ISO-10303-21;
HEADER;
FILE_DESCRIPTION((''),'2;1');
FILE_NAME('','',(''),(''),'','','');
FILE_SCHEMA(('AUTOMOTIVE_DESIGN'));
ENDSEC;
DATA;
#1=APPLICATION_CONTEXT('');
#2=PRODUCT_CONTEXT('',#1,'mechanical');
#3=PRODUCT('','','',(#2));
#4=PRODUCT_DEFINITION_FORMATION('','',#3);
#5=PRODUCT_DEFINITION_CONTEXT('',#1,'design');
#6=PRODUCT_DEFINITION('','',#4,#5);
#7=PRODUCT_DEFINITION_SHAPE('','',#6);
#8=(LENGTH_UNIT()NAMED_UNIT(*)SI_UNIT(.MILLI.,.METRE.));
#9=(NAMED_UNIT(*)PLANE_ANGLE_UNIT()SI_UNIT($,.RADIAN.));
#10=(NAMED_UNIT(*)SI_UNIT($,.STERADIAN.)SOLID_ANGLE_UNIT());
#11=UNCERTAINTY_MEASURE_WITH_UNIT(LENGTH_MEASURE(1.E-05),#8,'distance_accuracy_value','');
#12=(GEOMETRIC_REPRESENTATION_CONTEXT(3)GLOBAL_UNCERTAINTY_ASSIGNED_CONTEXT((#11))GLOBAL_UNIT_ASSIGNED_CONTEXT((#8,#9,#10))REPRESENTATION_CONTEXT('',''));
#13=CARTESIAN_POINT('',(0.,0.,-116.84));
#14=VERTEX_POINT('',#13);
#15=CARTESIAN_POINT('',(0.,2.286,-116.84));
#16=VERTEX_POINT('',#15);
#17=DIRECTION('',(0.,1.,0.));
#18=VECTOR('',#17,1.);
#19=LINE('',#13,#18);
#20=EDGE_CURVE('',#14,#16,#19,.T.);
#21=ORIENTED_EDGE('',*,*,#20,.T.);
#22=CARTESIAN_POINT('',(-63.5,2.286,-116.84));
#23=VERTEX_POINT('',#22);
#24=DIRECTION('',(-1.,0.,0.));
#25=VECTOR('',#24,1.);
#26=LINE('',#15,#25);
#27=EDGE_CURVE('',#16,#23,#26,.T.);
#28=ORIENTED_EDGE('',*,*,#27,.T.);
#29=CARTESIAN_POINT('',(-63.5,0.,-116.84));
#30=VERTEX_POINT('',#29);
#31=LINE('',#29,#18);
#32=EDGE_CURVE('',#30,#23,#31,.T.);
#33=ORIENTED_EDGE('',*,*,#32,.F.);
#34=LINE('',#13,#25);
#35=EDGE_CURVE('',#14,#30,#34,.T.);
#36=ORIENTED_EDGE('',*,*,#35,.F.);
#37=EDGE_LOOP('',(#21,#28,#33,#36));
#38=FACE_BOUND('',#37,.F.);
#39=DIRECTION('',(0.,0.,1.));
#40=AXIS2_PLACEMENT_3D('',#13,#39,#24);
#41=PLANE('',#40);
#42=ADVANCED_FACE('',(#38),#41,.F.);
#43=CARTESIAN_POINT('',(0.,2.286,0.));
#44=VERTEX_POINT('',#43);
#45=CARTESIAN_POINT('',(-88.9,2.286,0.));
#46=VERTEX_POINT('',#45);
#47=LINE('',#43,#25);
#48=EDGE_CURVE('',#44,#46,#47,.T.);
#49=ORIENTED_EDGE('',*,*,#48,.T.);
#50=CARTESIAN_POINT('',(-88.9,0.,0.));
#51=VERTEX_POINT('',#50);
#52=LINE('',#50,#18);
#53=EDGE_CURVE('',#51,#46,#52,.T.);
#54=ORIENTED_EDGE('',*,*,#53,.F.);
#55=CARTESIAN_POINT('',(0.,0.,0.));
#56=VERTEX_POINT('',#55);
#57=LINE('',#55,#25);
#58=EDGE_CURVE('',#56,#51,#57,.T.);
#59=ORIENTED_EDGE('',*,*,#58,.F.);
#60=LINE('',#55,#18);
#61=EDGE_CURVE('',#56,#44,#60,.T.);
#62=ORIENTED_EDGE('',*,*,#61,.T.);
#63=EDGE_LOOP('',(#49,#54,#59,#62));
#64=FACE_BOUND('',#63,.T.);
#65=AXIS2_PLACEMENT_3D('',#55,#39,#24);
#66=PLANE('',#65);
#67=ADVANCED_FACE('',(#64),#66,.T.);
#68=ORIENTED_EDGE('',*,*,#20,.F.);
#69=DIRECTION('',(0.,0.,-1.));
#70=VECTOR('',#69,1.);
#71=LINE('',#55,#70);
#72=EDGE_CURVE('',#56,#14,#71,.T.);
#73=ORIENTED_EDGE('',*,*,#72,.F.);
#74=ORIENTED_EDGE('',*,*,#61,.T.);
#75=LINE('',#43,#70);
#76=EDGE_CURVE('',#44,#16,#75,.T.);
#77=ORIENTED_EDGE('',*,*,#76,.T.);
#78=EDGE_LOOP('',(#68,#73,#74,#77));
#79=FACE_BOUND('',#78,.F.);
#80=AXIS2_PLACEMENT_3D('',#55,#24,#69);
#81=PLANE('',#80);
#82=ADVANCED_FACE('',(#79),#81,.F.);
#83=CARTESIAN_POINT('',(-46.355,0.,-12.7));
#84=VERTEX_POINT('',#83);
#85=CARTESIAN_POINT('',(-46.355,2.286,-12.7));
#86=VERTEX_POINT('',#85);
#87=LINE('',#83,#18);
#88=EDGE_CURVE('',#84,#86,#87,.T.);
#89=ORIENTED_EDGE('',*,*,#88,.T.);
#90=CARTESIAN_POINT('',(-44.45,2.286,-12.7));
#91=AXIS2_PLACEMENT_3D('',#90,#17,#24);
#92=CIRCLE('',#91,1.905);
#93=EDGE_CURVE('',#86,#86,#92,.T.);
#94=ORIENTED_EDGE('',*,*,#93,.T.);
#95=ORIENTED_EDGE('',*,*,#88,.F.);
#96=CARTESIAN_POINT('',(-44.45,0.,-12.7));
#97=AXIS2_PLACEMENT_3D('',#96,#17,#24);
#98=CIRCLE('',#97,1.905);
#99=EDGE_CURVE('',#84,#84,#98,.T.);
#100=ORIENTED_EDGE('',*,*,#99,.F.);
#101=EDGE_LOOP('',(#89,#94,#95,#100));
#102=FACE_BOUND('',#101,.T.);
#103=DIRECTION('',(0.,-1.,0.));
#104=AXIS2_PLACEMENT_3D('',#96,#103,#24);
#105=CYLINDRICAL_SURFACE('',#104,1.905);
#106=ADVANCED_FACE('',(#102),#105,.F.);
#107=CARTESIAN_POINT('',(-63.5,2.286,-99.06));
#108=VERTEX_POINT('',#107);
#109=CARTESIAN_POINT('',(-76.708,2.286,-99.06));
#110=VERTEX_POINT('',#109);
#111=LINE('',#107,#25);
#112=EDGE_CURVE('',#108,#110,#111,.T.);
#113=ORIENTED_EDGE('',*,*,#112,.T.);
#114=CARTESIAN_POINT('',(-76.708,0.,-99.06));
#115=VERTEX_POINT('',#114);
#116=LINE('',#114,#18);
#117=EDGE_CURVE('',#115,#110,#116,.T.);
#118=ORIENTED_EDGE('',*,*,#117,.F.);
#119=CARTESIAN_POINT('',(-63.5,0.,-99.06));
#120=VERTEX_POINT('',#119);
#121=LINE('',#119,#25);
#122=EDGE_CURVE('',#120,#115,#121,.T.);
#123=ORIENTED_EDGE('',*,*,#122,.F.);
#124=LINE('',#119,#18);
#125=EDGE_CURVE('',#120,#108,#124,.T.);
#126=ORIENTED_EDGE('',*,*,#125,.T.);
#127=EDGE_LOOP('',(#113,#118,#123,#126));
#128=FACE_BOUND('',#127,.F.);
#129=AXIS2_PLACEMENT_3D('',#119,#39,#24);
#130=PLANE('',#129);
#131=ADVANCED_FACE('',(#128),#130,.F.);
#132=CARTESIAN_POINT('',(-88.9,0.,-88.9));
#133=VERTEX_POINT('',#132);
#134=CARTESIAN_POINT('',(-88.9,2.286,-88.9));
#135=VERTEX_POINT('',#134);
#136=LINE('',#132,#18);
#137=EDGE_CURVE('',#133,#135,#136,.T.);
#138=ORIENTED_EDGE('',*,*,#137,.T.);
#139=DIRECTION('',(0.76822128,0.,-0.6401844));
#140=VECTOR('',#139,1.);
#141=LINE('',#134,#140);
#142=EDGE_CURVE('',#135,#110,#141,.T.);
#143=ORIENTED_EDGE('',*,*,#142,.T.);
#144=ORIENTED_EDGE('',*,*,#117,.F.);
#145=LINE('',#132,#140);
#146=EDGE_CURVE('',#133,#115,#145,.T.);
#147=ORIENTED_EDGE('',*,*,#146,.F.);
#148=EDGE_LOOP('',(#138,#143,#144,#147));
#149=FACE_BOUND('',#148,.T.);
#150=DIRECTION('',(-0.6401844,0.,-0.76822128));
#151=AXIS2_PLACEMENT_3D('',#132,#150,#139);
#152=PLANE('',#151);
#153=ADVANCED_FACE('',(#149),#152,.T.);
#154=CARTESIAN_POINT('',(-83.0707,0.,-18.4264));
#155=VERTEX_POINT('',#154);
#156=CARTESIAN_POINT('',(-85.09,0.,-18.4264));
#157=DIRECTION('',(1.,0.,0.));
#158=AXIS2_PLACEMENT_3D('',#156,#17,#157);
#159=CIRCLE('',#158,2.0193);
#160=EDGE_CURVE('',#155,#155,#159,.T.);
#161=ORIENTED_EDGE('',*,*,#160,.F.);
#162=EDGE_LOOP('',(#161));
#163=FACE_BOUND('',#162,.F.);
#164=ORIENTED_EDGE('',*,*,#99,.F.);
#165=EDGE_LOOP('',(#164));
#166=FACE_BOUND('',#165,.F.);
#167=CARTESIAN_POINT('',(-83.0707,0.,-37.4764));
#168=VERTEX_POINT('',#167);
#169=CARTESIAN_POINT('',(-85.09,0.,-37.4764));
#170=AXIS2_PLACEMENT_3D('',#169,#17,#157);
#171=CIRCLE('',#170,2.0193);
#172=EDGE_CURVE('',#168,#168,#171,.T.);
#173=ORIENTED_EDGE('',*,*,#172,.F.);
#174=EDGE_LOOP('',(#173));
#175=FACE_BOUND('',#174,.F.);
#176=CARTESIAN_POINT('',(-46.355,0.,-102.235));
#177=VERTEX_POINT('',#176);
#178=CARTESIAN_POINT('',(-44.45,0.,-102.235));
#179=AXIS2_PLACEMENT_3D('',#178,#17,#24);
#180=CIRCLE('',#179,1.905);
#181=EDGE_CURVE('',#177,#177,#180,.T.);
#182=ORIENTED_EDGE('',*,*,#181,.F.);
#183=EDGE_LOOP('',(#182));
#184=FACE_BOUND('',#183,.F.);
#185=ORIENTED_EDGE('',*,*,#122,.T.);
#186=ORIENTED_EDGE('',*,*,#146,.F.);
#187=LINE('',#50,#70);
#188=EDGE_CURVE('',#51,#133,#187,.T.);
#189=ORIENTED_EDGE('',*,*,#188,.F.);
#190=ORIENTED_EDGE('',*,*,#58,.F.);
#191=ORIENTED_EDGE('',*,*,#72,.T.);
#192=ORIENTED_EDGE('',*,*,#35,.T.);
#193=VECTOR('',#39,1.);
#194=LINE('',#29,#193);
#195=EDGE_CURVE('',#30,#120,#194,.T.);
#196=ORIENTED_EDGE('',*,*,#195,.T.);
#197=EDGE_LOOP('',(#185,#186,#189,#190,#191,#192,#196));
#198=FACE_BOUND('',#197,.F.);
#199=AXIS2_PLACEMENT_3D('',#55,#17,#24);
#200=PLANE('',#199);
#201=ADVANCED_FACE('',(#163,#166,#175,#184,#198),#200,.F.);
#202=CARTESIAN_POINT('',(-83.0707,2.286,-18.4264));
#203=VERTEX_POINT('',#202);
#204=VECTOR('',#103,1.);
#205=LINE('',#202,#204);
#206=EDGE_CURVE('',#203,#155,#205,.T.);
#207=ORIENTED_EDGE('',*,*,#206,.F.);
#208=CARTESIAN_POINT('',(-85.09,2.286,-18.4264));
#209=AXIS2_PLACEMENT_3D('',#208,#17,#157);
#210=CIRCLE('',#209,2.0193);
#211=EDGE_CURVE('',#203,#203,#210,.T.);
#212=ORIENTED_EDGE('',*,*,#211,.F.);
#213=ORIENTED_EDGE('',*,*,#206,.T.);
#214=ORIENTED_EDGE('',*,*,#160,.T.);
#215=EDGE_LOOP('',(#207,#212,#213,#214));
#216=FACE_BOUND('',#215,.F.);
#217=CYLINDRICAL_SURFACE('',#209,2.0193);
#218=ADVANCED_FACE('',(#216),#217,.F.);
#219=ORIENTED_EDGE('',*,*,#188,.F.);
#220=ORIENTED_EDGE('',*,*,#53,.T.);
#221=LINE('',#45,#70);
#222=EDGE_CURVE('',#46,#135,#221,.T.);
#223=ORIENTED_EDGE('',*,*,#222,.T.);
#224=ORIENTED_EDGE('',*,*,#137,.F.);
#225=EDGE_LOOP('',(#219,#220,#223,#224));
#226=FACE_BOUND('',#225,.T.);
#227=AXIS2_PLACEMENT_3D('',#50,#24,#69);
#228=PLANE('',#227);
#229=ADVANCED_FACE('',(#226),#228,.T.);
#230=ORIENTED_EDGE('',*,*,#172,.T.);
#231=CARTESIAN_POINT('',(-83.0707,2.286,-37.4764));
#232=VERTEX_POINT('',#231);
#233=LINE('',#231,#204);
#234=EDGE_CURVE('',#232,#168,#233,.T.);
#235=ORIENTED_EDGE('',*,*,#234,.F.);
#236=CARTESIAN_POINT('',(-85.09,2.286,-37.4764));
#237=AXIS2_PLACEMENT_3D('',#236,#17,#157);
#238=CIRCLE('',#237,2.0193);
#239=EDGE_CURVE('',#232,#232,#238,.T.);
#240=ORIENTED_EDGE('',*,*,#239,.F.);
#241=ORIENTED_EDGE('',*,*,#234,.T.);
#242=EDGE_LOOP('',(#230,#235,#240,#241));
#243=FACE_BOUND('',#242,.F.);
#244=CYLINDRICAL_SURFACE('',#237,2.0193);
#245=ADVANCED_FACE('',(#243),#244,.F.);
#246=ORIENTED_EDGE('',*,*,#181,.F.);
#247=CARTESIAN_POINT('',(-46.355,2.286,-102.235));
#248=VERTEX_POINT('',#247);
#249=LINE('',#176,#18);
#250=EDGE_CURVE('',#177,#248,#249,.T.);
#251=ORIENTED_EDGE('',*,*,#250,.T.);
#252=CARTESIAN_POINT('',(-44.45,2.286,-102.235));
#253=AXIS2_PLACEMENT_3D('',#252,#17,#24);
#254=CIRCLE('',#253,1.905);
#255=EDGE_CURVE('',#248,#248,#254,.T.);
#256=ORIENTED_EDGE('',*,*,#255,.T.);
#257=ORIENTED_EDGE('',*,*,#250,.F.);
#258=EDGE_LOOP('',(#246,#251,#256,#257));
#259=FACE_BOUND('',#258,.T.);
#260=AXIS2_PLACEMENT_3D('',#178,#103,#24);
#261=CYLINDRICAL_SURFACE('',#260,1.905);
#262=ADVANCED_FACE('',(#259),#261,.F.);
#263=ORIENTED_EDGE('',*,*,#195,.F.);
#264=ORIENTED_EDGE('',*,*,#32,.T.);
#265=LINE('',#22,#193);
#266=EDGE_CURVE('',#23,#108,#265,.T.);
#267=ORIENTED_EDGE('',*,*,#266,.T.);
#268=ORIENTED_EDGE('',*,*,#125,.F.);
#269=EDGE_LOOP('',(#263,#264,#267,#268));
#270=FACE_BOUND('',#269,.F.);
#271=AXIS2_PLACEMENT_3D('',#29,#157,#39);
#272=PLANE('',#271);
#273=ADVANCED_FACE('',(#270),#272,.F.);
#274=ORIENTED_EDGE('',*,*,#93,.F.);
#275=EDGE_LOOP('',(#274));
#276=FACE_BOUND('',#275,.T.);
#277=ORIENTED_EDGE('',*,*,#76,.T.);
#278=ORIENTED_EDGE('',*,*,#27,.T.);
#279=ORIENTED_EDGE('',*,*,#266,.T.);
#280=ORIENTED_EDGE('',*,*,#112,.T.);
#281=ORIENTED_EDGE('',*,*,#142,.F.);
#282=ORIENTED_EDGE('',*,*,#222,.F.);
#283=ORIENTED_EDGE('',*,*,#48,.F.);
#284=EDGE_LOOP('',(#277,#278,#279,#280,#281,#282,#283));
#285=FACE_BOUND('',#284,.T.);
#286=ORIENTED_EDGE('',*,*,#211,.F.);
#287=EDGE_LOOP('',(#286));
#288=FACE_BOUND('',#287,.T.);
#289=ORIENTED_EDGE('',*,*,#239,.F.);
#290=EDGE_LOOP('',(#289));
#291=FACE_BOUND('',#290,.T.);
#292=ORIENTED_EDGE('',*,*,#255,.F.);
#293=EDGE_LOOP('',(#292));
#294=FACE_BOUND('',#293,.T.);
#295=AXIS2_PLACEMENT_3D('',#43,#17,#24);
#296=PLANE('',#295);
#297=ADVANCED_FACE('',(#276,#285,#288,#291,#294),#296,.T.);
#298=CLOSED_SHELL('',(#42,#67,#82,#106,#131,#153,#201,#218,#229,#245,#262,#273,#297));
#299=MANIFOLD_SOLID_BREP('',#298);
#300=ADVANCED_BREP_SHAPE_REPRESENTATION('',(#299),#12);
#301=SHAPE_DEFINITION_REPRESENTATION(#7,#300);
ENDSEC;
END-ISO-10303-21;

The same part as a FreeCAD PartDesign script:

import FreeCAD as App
import Part
import Sketcher

V = App.Vector
Q = App.Units.Quantity

doc = App.newDocument("Part")
body = doc.addObject("PartDesign::Body", "Body")

# Sketch on XZ plane
sketch1 = body.newObject("Sketcher::SketchObject", "Sketch")
sketch1.AttachmentSupport = (doc.getObject("XZ_Plane"), [""])
sketch1.MapMode = "FlatFace"
sketch1.addGeometry([
    Part.LineSegment(V(-88.9, 0, 0), V(0, 0, 0)),  # 0
    Part.LineSegment(V(0, 0, 0), V(0, -116.84, 0)),  # 1
    Part.LineSegment(V(0, -116.84, 0), V(-63.5, -116.84, 0)),  # 2
    Part.LineSegment(V(-63.5, -116.84, 0), V(-63.5, -99.06, 0)),  # 3
    Part.LineSegment(V(-63.5, -99.06, 0), V(-76.708, -99.06, 0)),  # 4
    Part.LineSegment(V(-76.708, -99.06, 0), V(-88.9, -88.9, 0)),  # 5
    Part.LineSegment(V(-88.9, -88.9, 0), V(-88.9, 0, 0)),  # 6
    Part.Circle(V(-44.45, -102.235, 0), V(0, 0, 1), 1.905),  # 7
    Part.Circle(V(-44.45, -12.7, 0), V(0, 0, 1), 1.905),  # 8
], False)
sketch1.addConstraint([
    Sketcher.Constraint("Coincident", 0, 2, 1, 1),
    Sketcher.Constraint("Coincident", 1, 2, 2, 1),
    Sketcher.Constraint("Coincident", 2, 2, 3, 1),
    Sketcher.Constraint("Coincident", 3, 2, 4, 1),
    Sketcher.Constraint("Coincident", 4, 2, 5, 1),
    Sketcher.Constraint("Coincident", 5, 2, 6, 1),
    Sketcher.Constraint("Coincident", 6, 2, 0, 1),
    Sketcher.Constraint("Horizontal", 0),
    Sketcher.Constraint("Vertical", 1),
    Sketcher.Constraint("Horizontal", 2),
    Sketcher.Constraint("Vertical", 3),
    Sketcher.Constraint("Horizontal", 4),
    Sketcher.Constraint("Vertical", 6),
    Sketcher.Constraint("Coincident", 0, 2, -1, 1),
    Sketcher.Constraint("Equal", 7, 8),
    Sketcher.Constraint("Vertical", 7, 3, 8, 3),
    Sketcher.Constraint("Equal", 0, 6),
    Sketcher.Constraint("DistanceX", 0, 1, 0, 2, Q("3.5 in")),
    Sketcher.Constraint("DistanceX", 2, 2, 2, 1, Q("2.5 in")),
    Sketcher.Constraint("DistanceY", 1, 2, 1, 1, Q("4.6 in")),
    Sketcher.Constraint("DistanceY", 3, 1, 3, 2, Q("0.7 in")),
    Sketcher.Constraint("DistanceX", 4, 2, 4, 1, Q("0.52 in")),
    Sketcher.Constraint("Diameter", 7, Q("0.15 in")),
    Sketcher.Constraint("DistanceY", 5, 2, 8, 3, Q("3 in")),
    Sketcher.Constraint("DistanceX", 7, 3, -1, 1, Q("1.75 in")),
    Sketcher.Constraint("DistanceY", 7, 3, -1, 1, Q("4.025 in")),
])
pad1 = body.newObject("PartDesign::Pad", "Pad")
pad1.Profile = sketch1
pad1.Length = Q("0.09 in")
pad1.Reversed = True

# Sketch on XZ plane
sketch2 = body.newObject("Sketcher::SketchObject", "Sketch001")
sketch2.AttachmentSupport = (doc.getObject("XZ_Plane"), [""])
sketch2.MapMode = "FlatFace"
sketch2.AttachmentOffset = App.Placement(V(0, 0, -0.09 * 25.4), App.Rotation())
sketch2.addGeometry([
    Part.Circle(V(-85.09, -18.4264, 0), V(0, 0, 1), 2.0193),
    Part.Circle(V(-85.09, -37.4764, 0), V(0, 0, 1), 2.0193),
], False)
sketch2.addConstraint([
    Sketcher.Constraint("Equal", 0, 1),
    Sketcher.Constraint("Vertical", 0, 3, 1, 3),
    Sketcher.Constraint("Diameter", 0, Q("0.159 in")),
    Sketcher.Constraint("DistanceX", 0, 3, -1, 1, Q("3.35 in")),
    Sketcher.Constraint("DistanceY", 1, 3, 0, 3, Q("0.75 in")),
    Sketcher.Constraint("DistanceY", 0, 3, -1, 1, 18.4264),
])
pocket1 = body.newObject("PartDesign::Pocket", "Pocket")
pocket1.Profile = sketch2
pocket1.Length = Q("0.75 in")
pocket1.Reversed = True

doc.recompute()
